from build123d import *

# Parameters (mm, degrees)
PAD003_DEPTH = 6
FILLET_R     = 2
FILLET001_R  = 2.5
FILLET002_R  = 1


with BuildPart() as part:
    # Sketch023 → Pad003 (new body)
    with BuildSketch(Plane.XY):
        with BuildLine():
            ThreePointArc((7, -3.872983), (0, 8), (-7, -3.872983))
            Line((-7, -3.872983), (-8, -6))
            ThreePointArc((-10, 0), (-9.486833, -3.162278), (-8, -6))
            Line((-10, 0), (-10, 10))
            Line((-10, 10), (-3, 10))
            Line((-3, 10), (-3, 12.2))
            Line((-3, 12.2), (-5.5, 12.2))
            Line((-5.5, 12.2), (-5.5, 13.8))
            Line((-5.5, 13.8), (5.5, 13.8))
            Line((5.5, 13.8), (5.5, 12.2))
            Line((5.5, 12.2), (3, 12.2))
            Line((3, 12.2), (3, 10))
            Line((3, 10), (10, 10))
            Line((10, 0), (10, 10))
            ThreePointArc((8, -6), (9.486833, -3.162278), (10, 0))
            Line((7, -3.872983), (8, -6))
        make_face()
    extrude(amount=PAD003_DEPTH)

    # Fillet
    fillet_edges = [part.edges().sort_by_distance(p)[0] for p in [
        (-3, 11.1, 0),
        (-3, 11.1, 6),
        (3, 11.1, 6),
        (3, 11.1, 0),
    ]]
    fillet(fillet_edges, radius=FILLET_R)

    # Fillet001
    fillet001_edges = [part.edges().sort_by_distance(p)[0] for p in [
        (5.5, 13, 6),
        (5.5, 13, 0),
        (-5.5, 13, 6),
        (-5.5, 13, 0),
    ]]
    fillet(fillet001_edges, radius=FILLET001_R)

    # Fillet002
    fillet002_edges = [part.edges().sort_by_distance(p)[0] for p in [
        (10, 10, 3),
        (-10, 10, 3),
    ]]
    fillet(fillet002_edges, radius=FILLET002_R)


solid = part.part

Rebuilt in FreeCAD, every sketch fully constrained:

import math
import FreeCAD as App
import Part
import Sketcher
from FreeCAD import Vector


def edges_at(feature, points):
    """Names of the edges that pass closest to the given points."""
    edges = feature.Shape.Edges
    near = lambda p: min(range(len(edges)), key=lambda i: edges[i].distToShape(Part.Vertex(*p))[0])
    return sorted({f"Edge{near(p) + 1}" for p in points})

doc = App.newDocument("Part")
params = doc.addObject("Spreadsheet::Sheet", "Params")
for row, (alias, value) in enumerate([
    ("sketch1_radius", "8 mm"),
    ("sketch1_width", "7 mm"),
    ("sketch1_width2", "11 mm"),
    ("sketch1_height", "10 mm"),
    ("sketch1_width3", "2.5 mm"),
    ("pad1_length", "6 mm"),
    ("fillet_radius", "2 mm"),
    ("fillet2_radius", "2.5 mm"),
    ("fillet3_radius", "1 mm"),
], start=1):
    params.set(f"A{row}", alias)
    params.set(f"B{row}", "=" + value)
    params.setAlias(f"B{row}", alias)

body = doc.addObject("PartDesign::Body", "Body")

# Sketch on XY plane
sketch1 = doc.addObject("Sketcher::SketchObject", "Sketch")
body.addObject(sketch1)
sketch1.AttachmentSupport = (doc.XY_Plane, [""])
sketch1.MapMode = "FlatFace"
sketch1.addGeometry(Part.ArcOfCircle(Part.Circle(Vector(0, 0, 0), Vector(0, 0, 1), 8), math.radians(-29), math.radians(209)), False)
sketch1.addGeometry(Part.LineSegment(Vector(7, -3.9, 0), Vector(8, -6, 0)), False)
sketch1.addGeometry(Part.ArcOfCircle(Part.Circle(Vector(0, 0, 0), Vector(0, 0, 1), 10), math.radians(-37), math.radians(0)), False)
sketch1.addGeometry(Part.LineSegment(Vector(10, 0, 0), Vector(10, 10, 0)), False)
sketch1.addGeometry(Part.LineSegment(Vector(10, 10, 0), Vector(3, 10, 0)), False)
sketch1.addGeometry(Part.LineSegment(Vector(3, 10, 0), Vector(3, 12.2, 0)), False)
sketch1.addGeometry(Part.LineSegment(Vector(3, 12.2, 0), Vector(5.5, 12.2, 0)), False)
sketch1.addGeometry(Part.LineSegment(Vector(5.5, 12.2, 0), Vector(5.5, 13.8, 0)), False)
sketch1.addGeometry(Part.LineSegment(Vector(5.5, 13.8, 0), Vector(-5.5, 13.8, 0)), False)
sketch1.addGeometry(Part.LineSegment(Vector(-5.5, 13.8, 0), Vector(-5.5, 12.2, 0)), False)
sketch1.addGeometry(Part.LineSegment(Vector(-5.5, 12.2, 0), Vector(-3, 12.2, 0)), False)
sketch1.addGeometry(Part.LineSegment(Vector(-3, 12.2, 0), Vector(-3, 10, 0)), False)
sketch1.addGeometry(Part.LineSegment(Vector(-3, 10, 0), Vector(-10, 10, 0)), False)
sketch1.addGeometry(Part.LineSegment(Vector(-10, 10, 0), Vector(-10, 0, 0)), False)
sketch1.addGeometry(Part.ArcOfCircle(Part.Circle(Vector(0, 0, 0), Vector(0, 0, 1), 10), math.radians(180), math.radians(217)), False)
sketch1.addGeometry(Part.LineSegment(Vector(-8, -6, 0), Vector(-7, -3.9, 0)), False)
sketch1.addConstraint(Sketcher.Constraint("Coincident", 0, 1, 1, 1))
sketch1.addConstraint(Sketcher.Constraint("Coincident", 1, 2, 2, 1))
sketch1.addConstraint(Sketcher.Constraint("Tangent", 2, 2, 3, 1))
sketch1.addConstraint(Sketcher.Constraint("Coincident", 3, 2, 4, 1))
sketch1.addConstraint(Sketcher.Constraint("Coincident", 4, 2, 5, 1))
sketch1.addConstraint(Sketcher.Constraint("Coincident", 5, 2, 6, 1))
sketch1.addConstraint(Sketcher.Constraint("Coincident", 6, 2, 7, 1))
sketch1.addConstraint(Sketcher.Constraint("Coincident", 7, 2, 8, 1))
sketch1.addConstraint(Sketcher.Constraint("Coincident", 8, 2, 9, 1))
sketch1.addConstraint(Sketcher.Constraint("Coincident", 9, 2, 10, 1))
sketch1.addConstraint(Sketcher.Constraint("Coincident", 10, 2, 11, 1))
sketch1.addConstraint(Sketcher.Constraint("Coincident", 11, 2, 12, 1))
sketch1.addConstraint(Sketcher.Constraint("Coincident", 12, 2, 13, 1))
sketch1.addConstraint(Sketcher.Constraint("Tangent", 13, 2, 14, 1))
sketch1.addConstraint(Sketcher.Constraint("Coincident", 14, 2, 15, 1))
sketch1.addConstraint(Sketcher.Constraint("Coincident", 15, 2, 0, 2))
sketch1.addConstraint(Sketcher.Constraint("Vertical", 3))
sketch1.addConstraint(Sketcher.Constraint("Horizontal", 4))
sketch1.addConstraint(Sketcher.Constraint("Vertical", 5))
sketch1.addConstraint(Sketcher.Constraint("Horizontal", 6))
sketch1.addConstraint(Sketcher.Constraint("Vertical", 7))
sketch1.addConstraint(Sketcher.Constraint("Horizontal", 8))
sketch1.addConstraint(Sketcher.Constraint("Vertical", 9))
sketch1.addConstraint(Sketcher.Constraint("Horizontal", 10))
sketch1.addConstraint(Sketcher.Constraint("Vertical", 11))
sketch1.addConstraint(Sketcher.Constraint("Horizontal", 12))
sketch1.addConstraint(Sketcher.Constraint("Vertical", 13))
sketch1.addConstraint(Sketcher.Constraint("Coincident", 0, 3, -1, 1))
sketch1.addConstraint(Sketcher.Constraint("Coincident", 2, 3, -1, 1))
sketch1.addConstraint(Sketcher.Constraint("Coincident", 14, 3, -1, 1))
sketch1.addConstraint(Sketcher.Constraint("Equal", 2, 14))
sketch1.addConstraint(Sketcher.Constraint("Symmetric", 6, 2, 9, 2, -2))
sketch1.addConstraint(Sketcher.Constraint("Symmetric", 4, 2, 11, 2, -2))
sketch1.addConstraint(Sketcher.Constraint("Horizontal", 1, 2, 14, 2))
sketch1.addConstraint(Sketcher.Constraint("Horizontal", 0, 1, 15, 2))
sketch1.addConstraint(Sketcher.Constraint("Radius", 0, 8.0))
sketch1.addConstraint(Sketcher.Constraint("DistanceX", 4, 2, 4, 1, 7.0))
sketch1.addConstraint(Sketcher.Constraint("DistanceX", 8, 2, 8, 1, 11.0))
sketch1.addConstraint(Sketcher.Constraint("DistanceY", 3, 1, 3, 2, 10.0))
sketch1.addConstraint(Sketcher.Constraint("DistanceX", 6, 1, 6, 2, 2.5))
sketch1.addConstraint(Sketcher.Constraint("DistanceY", 5, 1, 5, 2, 2.2))
sketch1.addConstraint(Sketcher.Constraint("DistanceY", 7, 1, 7, 2, 1.6))
sketch1.addConstraint(Sketcher.Constraint("DistanceX", -1, 1, 0, 1, 7.0))
sketch1.addConstraint(Sketcher.Constraint("DistanceX", -1, 1, 1, 2, 8.0))
sketch1.setExpression("Constraints[35]", "Params.sketch1_radius")
sketch1.setExpression("Constraints[36]", "Params.sketch1_width")
sketch1.setExpression("Constraints[37]", "Params.sketch1_width2")
sketch1.setExpression("Constraints[38]", "Params.sketch1_height")
sketch1.setExpression("Constraints[39]", "Params.sketch1_width3")
pad1 = doc.addObject("PartDesign::Pad", "Pad")
body.addObject(pad1)
pad1.Profile = sketch1
pad1.setExpression("Length", "Params.pad1_length")
doc.recompute()

fillet = doc.addObject("PartDesign::Fillet", "Fillet")
body.addObject(fillet)
fillet.Base = (pad1, edges_at(pad1, [
    (-3, 11.1, 0),
    (-3, 11.1, 6),
    (3, 11.1, 6),
    (3, 11.1, 0),
]))
fillet.setExpression("Radius", "Params.fillet_radius")
doc.recompute()

fillet2 = doc.addObject("PartDesign::Fillet", "Fillet001")
body.addObject(fillet2)
fillet2.Base = (fillet, edges_at(fillet, [
    (5.5, 13, 6),
    (5.5, 13, 0),
    (-5.5, 13, 6),
    (-5.5, 13, 0),
]))
fillet2.setExpression("Radius", "Params.fillet2_radius")
doc.recompute()

fillet3 = doc.addObject("PartDesign::Fillet", "Fillet002")
body.addObject(fillet3)
fillet3.Base = (fillet2, edges_at(fillet2, [(10, 10, 3), (-10, 10, 3)]))
fillet3.setExpression("Radius", "Params.fillet3_radius")

doc.recompute()
